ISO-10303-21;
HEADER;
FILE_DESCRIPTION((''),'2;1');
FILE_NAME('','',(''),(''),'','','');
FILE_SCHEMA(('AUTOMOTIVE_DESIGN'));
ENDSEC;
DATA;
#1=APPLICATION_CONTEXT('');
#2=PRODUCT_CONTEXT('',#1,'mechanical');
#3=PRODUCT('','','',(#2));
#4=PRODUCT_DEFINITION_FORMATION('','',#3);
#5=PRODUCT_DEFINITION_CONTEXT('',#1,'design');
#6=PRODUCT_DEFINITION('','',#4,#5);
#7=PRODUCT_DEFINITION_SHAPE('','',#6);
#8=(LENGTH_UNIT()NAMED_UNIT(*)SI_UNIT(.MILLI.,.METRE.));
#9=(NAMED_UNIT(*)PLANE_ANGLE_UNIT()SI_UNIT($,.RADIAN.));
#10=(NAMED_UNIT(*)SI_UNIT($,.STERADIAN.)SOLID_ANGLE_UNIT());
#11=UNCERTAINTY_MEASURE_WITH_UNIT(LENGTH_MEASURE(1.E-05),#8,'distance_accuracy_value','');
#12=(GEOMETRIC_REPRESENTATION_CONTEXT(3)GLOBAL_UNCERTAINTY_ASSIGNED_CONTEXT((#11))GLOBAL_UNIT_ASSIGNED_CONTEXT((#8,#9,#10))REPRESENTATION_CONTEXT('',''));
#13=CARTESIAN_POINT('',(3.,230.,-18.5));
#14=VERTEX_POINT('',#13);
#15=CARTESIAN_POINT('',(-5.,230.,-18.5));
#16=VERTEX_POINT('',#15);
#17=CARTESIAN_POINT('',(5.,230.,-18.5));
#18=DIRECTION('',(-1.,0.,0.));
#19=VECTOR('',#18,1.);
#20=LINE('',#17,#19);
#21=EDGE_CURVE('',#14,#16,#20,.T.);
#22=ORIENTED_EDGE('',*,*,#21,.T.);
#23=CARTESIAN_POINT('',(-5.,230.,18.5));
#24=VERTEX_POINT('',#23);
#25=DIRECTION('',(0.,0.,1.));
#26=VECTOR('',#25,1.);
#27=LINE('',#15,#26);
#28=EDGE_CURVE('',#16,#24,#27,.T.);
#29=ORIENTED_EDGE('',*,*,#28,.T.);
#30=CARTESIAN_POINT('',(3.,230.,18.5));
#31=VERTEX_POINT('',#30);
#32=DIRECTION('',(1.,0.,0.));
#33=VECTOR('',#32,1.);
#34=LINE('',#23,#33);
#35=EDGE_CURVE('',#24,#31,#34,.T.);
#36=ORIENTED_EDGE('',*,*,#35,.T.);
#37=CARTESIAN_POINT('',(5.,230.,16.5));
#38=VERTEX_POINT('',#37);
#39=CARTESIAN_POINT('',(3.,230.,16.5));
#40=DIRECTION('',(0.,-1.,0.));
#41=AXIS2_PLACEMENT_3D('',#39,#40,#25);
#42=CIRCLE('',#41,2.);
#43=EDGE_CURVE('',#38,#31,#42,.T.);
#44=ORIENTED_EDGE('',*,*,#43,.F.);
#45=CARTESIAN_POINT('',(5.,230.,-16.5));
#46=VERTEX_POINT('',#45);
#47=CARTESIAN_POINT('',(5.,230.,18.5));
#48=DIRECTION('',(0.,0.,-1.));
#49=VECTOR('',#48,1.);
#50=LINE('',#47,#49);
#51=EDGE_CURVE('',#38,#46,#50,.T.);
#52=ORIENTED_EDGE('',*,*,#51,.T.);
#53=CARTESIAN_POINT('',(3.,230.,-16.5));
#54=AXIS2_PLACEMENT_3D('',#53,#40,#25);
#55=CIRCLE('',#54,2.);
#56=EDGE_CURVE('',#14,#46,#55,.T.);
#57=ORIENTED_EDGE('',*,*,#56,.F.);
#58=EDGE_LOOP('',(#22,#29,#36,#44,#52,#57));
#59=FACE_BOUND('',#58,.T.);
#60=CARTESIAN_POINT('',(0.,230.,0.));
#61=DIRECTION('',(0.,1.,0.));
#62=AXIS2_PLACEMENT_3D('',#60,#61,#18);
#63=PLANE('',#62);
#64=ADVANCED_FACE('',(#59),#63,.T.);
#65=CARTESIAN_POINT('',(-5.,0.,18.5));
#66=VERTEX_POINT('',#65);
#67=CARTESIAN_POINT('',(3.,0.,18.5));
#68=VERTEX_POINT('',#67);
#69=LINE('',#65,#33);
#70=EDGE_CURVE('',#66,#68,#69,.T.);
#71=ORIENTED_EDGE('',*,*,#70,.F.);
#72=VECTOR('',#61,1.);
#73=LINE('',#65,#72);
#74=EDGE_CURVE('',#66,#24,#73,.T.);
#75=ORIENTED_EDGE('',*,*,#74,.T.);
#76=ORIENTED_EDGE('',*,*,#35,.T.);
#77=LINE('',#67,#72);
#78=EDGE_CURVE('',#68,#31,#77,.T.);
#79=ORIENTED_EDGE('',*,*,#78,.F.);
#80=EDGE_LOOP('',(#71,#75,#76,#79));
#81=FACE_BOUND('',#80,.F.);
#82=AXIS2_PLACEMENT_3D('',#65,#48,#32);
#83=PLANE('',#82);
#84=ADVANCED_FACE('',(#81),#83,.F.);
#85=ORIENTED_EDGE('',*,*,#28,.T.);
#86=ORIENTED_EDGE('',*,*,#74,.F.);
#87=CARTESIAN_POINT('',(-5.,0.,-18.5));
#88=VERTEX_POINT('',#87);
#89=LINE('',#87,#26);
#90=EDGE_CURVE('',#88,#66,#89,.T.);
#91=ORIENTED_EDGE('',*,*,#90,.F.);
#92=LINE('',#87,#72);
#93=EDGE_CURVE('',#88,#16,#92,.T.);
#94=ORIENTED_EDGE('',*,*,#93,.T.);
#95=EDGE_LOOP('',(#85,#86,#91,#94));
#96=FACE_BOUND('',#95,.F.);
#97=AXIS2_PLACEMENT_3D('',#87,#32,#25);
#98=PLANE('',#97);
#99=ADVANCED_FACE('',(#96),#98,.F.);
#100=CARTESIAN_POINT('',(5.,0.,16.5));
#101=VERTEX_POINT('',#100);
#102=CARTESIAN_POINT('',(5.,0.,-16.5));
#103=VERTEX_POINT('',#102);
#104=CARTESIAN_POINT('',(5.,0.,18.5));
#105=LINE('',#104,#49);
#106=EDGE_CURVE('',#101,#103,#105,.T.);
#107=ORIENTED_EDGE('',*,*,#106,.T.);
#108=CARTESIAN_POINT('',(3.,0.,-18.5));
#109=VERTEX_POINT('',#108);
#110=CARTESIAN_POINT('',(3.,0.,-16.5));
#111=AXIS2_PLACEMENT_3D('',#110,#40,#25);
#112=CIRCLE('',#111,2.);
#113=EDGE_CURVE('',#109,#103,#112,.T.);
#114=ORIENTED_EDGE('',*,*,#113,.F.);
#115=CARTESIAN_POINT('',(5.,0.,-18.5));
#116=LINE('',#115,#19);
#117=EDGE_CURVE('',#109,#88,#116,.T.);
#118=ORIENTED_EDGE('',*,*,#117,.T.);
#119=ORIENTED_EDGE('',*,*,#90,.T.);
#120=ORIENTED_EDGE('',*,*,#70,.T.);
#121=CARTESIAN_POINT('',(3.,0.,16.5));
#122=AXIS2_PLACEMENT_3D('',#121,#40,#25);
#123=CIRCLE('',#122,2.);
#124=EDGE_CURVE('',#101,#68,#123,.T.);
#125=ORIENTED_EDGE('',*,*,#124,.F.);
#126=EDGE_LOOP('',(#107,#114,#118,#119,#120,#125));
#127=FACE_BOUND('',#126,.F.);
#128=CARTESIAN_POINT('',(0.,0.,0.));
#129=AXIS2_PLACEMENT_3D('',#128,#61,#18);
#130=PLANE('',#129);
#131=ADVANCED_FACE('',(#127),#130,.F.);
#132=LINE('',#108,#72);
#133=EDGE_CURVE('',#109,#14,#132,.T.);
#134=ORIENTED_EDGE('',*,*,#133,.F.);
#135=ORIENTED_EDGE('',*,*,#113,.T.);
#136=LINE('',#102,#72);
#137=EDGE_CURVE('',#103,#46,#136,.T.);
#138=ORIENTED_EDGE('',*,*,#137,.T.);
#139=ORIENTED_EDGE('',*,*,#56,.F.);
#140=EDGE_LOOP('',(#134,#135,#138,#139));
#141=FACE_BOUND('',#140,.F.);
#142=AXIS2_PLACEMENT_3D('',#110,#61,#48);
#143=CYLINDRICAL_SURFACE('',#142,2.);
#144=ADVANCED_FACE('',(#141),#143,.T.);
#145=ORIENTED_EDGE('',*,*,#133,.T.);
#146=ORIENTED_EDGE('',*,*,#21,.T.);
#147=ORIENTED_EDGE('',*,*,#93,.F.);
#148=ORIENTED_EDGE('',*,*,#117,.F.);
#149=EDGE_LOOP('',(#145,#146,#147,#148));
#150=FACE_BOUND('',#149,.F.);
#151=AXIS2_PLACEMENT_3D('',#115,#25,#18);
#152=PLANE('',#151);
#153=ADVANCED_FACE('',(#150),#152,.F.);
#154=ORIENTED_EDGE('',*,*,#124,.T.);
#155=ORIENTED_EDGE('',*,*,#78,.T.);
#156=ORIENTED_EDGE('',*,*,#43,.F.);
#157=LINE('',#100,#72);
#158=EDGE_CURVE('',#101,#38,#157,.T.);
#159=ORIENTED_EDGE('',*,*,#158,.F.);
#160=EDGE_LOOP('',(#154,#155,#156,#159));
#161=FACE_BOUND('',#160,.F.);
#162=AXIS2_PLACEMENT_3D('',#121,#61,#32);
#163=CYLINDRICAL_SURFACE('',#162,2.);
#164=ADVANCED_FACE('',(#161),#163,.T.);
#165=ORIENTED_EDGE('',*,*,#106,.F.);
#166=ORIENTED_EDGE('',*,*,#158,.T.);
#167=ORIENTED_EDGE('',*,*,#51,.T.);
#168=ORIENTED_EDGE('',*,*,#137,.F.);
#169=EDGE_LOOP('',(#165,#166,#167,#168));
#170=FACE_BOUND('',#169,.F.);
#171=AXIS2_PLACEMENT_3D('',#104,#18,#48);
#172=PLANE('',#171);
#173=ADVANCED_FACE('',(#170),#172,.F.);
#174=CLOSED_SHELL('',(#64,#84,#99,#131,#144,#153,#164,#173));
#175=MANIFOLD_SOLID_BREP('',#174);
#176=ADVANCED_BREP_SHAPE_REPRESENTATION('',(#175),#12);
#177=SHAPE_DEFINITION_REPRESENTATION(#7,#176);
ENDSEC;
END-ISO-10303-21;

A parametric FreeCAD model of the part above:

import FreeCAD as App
import Part
import Sketcher

V = App.Vector


def edges_at(feature, points):
    """Names of the edges that pass closest to the given points."""
    edges = feature.Shape.Edges
    near = lambda p: min(range(len(edges)), key=lambda i: edges[i].distToShape(Part.Vertex(*p))[0])
    return sorted({f"Edge{near(p) + 1}" for p in points})


def add_polygon(sketch, points):
    """Adds a closed chain of lines whose ends are joined by coincident constraints."""
    first, n = sketch.GeometryCount, len(points)
    for a, b in zip(points, points[1:] + points[:1]):
        sketch.addGeometry(Part.LineSegment(App.Vector(*a, 0), App.Vector(*b, 0)), False)
    for i in range(n):
        sketch.addConstraint(Sketcher.Constraint("Coincident", first + i, 2, first + (i + 1) % n, 1))

doc = App.newDocument("Part")
body = doc.addObject("PartDesign::Body", "Body")

sketch1 = doc.addObject("Sketcher::SketchObject", "Sketch")
body.addObject(sketch1)
sketch1.AttachmentSupport = (doc.XZ_Plane, [""])
sketch1.MapMode = "FlatFace"
add_polygon(sketch1, [(-5, -18.5), (-5, 18.5), (5, 18.5), (5, -18.5)])
sketch1.addConstraint([
    Sketcher.Constraint("Vertical", 0),
    Sketcher.Constraint("Horizontal", 1),
    Sketcher.Constraint("Vertical", 2),
    Sketcher.Constraint("Horizontal", 3),
    Sketcher.Constraint("Symmetric", 0, 2, 2, 2, -1, 1),
    Sketcher.Constraint("DistanceX", 1, 1, 1, 2, 10.0),
    Sketcher.Constraint("DistanceY", 0, 1, 0, 2, 37.0),
])
pad1 = doc.addObject("PartDesign::Pad", "Pad")
body.addObject(pad1)
pad1.Profile = sketch1
pad1.Length = 230
pad1.Reversed = True
doc.recompute()

fillet = doc.addObject("PartDesign::Fillet", "Fillet")
body.addObject(fillet)
fillet.Base = (pad1, edges_at(pad1, [(5, 115, 18.5), (5, 115, -18.5)]))
fillet.Radius = 2

doc.recompute()
